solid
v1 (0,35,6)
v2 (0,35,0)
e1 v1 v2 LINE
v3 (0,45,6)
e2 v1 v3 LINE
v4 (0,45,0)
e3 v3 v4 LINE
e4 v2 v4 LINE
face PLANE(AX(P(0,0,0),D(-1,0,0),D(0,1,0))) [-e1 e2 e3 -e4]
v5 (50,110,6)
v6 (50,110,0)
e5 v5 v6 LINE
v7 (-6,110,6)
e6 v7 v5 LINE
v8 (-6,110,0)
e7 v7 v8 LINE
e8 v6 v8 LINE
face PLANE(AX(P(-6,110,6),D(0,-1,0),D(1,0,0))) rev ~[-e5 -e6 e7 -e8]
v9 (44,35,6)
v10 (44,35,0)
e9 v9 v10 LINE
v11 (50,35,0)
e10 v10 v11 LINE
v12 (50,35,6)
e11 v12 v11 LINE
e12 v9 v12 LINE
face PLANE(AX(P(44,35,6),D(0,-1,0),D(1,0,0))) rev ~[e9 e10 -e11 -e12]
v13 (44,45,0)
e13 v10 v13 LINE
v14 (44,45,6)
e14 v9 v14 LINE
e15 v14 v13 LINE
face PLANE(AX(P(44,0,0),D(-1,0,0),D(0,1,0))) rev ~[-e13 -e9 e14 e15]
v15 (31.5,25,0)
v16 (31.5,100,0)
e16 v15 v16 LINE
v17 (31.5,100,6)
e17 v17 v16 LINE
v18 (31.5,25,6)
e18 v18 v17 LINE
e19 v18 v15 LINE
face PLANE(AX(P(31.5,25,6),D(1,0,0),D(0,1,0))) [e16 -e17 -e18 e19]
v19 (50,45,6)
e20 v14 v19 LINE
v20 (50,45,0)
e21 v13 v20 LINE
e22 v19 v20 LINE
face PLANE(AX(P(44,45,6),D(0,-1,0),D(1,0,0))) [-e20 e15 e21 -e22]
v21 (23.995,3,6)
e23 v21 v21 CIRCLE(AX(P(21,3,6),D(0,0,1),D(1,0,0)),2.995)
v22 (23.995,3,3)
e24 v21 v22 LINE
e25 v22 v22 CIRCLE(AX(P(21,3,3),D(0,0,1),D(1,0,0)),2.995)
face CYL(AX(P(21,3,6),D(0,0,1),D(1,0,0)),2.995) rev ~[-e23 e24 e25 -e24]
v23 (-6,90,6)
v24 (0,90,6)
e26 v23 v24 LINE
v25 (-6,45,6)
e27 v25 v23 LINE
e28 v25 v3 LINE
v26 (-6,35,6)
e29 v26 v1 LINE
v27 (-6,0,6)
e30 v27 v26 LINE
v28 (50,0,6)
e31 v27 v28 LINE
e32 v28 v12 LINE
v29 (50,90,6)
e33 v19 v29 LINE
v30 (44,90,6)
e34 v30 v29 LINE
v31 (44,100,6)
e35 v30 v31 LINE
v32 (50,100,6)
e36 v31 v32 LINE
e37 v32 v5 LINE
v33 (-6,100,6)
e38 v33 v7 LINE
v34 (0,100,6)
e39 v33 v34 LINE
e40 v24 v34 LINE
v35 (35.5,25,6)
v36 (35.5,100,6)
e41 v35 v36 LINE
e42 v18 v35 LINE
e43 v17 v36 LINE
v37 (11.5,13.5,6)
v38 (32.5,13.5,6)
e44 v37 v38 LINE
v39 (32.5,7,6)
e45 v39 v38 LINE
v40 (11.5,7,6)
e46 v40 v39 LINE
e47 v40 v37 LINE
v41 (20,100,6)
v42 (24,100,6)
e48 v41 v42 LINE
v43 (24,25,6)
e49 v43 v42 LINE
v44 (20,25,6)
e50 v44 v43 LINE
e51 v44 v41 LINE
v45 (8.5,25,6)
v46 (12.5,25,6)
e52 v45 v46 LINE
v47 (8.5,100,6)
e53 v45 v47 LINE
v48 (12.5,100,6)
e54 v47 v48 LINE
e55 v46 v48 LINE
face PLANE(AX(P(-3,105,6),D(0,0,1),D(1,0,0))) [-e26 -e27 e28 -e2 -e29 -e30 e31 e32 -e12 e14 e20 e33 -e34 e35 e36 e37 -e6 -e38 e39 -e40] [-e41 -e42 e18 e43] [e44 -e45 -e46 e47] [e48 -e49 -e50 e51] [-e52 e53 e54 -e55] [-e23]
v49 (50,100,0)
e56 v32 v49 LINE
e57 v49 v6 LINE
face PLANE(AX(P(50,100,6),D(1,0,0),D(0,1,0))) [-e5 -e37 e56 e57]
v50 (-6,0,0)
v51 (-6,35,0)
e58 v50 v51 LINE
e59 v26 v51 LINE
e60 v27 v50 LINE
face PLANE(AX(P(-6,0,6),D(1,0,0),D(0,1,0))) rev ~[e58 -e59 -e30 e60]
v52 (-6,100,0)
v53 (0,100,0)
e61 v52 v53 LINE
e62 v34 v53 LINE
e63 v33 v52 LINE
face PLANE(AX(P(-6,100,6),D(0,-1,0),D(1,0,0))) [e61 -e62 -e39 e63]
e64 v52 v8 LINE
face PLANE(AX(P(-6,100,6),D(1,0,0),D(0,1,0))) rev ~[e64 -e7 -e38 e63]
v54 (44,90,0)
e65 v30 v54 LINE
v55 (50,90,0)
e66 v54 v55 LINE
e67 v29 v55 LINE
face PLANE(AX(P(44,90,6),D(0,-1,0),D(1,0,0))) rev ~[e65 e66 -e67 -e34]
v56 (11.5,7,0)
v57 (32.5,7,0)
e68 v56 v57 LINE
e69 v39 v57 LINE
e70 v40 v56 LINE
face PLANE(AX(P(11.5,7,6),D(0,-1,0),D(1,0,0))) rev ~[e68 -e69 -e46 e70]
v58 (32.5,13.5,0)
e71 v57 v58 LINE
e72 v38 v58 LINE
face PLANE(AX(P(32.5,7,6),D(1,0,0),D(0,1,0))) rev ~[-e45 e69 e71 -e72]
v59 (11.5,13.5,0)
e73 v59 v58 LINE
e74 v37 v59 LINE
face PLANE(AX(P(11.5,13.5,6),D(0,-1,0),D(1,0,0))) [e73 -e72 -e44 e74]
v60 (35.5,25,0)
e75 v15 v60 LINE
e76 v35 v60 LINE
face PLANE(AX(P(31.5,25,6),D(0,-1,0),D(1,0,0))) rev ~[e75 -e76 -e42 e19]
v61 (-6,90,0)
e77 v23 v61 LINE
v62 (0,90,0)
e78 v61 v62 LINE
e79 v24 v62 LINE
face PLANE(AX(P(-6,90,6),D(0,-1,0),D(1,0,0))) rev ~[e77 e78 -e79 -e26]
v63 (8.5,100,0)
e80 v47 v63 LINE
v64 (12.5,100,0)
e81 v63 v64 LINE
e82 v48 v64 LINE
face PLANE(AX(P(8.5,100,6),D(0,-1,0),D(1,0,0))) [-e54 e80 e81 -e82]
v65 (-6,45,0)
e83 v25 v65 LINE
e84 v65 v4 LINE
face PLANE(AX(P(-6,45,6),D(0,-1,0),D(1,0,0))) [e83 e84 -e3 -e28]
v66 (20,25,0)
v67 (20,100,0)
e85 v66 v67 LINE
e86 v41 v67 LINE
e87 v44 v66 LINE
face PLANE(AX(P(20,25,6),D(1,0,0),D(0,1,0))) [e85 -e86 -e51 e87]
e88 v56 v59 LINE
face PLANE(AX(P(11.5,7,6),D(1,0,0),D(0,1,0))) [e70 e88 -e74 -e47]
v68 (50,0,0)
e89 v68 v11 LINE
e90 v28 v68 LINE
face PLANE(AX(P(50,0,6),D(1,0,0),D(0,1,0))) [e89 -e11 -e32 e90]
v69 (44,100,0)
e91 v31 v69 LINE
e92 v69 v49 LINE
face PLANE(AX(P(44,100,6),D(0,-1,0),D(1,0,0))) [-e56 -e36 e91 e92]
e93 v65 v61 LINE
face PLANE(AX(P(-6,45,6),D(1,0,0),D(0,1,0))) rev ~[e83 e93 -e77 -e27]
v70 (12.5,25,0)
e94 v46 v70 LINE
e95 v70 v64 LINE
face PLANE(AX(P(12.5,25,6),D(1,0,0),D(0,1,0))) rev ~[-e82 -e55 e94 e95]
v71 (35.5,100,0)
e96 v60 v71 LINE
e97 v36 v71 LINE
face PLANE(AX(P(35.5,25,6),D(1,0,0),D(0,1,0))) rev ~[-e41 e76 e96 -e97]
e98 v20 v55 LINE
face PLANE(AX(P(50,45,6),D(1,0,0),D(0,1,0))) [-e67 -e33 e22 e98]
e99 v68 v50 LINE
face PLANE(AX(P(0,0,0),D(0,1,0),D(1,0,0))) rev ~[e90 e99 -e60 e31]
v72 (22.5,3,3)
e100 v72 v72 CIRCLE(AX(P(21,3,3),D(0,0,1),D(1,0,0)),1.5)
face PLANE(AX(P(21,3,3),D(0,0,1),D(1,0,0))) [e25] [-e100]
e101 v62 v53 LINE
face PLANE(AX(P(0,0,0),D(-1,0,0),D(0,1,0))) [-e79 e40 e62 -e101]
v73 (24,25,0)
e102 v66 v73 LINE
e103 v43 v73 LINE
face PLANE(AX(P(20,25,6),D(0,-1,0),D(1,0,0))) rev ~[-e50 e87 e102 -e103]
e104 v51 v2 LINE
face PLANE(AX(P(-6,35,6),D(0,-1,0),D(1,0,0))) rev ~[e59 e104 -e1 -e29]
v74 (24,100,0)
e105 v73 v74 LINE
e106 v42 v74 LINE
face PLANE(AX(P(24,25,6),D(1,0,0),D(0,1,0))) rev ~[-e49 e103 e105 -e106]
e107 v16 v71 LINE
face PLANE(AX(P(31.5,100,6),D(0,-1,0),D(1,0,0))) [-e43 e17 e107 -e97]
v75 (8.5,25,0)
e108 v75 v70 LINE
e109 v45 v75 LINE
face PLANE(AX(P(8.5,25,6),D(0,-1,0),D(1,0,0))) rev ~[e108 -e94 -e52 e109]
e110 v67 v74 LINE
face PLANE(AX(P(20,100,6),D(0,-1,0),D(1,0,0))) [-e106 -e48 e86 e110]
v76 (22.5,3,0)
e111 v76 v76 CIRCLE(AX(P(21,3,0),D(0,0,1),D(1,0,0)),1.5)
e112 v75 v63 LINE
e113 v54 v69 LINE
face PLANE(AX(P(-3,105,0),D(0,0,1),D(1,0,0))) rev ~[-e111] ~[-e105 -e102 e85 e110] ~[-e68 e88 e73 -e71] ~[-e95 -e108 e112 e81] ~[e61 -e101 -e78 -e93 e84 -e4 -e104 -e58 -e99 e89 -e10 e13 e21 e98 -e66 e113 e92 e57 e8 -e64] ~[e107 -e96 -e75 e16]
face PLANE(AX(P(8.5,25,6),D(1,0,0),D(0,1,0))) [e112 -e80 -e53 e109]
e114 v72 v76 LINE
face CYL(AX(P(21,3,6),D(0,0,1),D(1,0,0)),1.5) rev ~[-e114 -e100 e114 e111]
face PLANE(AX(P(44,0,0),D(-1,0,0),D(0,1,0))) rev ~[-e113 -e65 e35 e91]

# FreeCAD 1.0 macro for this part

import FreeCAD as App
import Part
import Sketcher

V = App.Vector
Q = App.Units.Quantity

doc = App.newDocument("Part")
body = doc.addObject("PartDesign::Body", "Body")

sketch1 = body.newObject("Sketcher::SketchObject", "Sketch")
sketch1.AttachmentSupport = (doc.getObject("XY_Plane"), [""])
sketch1.MapMode = "FlatFace"
sketch1.addGeometry(Part.LineSegment(V(0, 110, 0), V(0, 0, 0)), False)
sketch1.addGeometry(Part.LineSegment(V(0, 0, 0), V(44, 0, 0)), False)
sketch1.addGeometry(Part.LineSegment(V(44, 0, 0), V(44, 110, 0)), False)
sketch1.addGeometry(Part.LineSegment(V(44, 110, 0), V(0, 110, 0)), False)
sketch1.addConstraint(Sketcher.Constraint("Coincident", 0, 2, 1, 1))
sketch1.addConstraint(Sketcher.Constraint("Coincident", 1, 2, 2, 1))
sketch1.addConstraint(Sketcher.Constraint("Coincident", 2, 2, 3, 1))
sketch1.addConstraint(Sketcher.Constraint("Coincident", 3, 2, 0, 1))
sketch1.addConstraint(Sketcher.Constraint("Vertical", 0))
sketch1.addConstraint(Sketcher.Constraint("Horizontal", 1))
sketch1.addConstraint(Sketcher.Constraint("Vertical", 2))
sketch1.addConstraint(Sketcher.Constraint("Horizontal", 3))
sketch1.addConstraint(Sketcher.Constraint("Coincident", 0, 2, -1, 1))
sketch1.addConstraint(Sketcher.Constraint("DistanceX", 1, 1, 1, 2, Q("44 mm")))
sketch1.addConstraint(Sketcher.Constraint("DistanceY", 0, 2, 0, 1, Q("110 mm")))
pad1 = body.newObject("PartDesign::Pad", "Pad")
pad1.Profile = sketch1
pad1.Length = 6

sketch2 = body.newObject("Sketcher::SketchObject", "Sketch001")
sketch2.AttachmentSupport = (doc.getObject("XY_Plane"), [""])
sketch2.MapMode = "FlatFace"
sketch2.AttachmentOffset = App.Placement(V(0, 0, 6), App.Rotation())
sketch2.addGeometry(Part.LineSegment(V(11.5, 13.5, 0), V(11.5, 7, 0)), False)
sketch2.addGeometry(Part.LineSegment(V(11.5, 7, 0), V(32.5, 7, 0)), False)
sketch2.addGeometry(Part.LineSegment(V(32.5, 7, 0), V(32.5, 13.5, 0)), False)
sketch2.addGeometry(Part.LineSegment(V(32.5, 13.5, 0), V(11.5, 13.5, 0)), False)
sketch2.addGeometry(Part.LineSegment(V(20, 100, 0), V(20, 25, 0)), False)
sketch2.addGeometry(Part.LineSegment(V(20, 25, 0), V(24, 25, 0)), False)
sketch2.addGeometry(Part.LineSegment(V(24, 25, 0), V(24, 100, 0)), False)
sketch2.addGeometry(Part.LineSegment(V(24, 100, 0), V(20, 100, 0)), False)
sketch2.addGeometry(Part.LineSegment(V(31.5, 100, 0), V(31.5, 25, 0)), False)
sketch2.addGeometry(Part.LineSegment(V(31.5, 25, 0), V(35.5, 25, 0)), False)
sketch2.addGeometry(Part.LineSegment(V(35.5, 25, 0), V(35.5, 100, 0)), False)
sketch2.addGeometry(Part.LineSegment(V(35.5, 100, 0), V(31.5, 100, 0)), False)
sketch2.addGeometry(Part.LineSegment(V(8.5, 100, 0), V(8.5, 25, 0)), False)
sketch2.addGeometry(Part.LineSegment(V(8.5, 25, 0), V(12.5, 25, 0)), False)
sketch2.addGeometry(Part.LineSegment(V(12.5, 25, 0), V(12.5, 100, 0)), False)
sketch2.addGeometry(Part.LineSegment(V(12.5, 100, 0), V(8.5, 100, 0)), False)
sketch2.addConstraint(Sketcher.Constraint("Coincident", 0, 2, 1, 1))
sketch2.addConstraint(Sketcher.Constraint("Coincident", 1, 2, 2, 1))
sketch2.addConstraint(Sketcher.Constraint("Coincident", 2, 2, 3, 1))
sketch2.addConstraint(Sketcher.Constraint("Coincident", 3, 2, 0, 1))
sketch2.addConstraint(Sketcher.Constraint("Coincident", 4, 2, 5, 1))
sketch2.addConstraint(Sketcher.Constraint("Coincident", 5, 2, 6, 1))
sketch2.addConstraint(Sketcher.Constraint("Coincident", 6, 2, 7, 1))
sketch2.addConstraint(Sketcher.Constraint("Coincident", 7, 2, 4, 1))
sketch2.addConstraint(Sketcher.Constraint("Coincident", 8, 2, 9, 1))
sketch2.addConstraint(Sketcher.Constraint("Coincident", 9, 2, 10, 1))
sketch2.addConstraint(Sketcher.Constraint("Coincident", 10, 2, 11, 1))
sketch2.addConstraint(Sketcher.Constraint("Coincident", 11, 2, 8, 1))
sketch2.addConstraint(Sketcher.Constraint("Coincident", 12, 2, 13, 1))
sketch2.addConstraint(Sketcher.Constraint("Coincident", 13, 2, 14, 1))
sketch2.addConstraint(Sketcher.Constraint("Coincident", 14, 2, 15, 1))
sketch2.addConstraint(Sketcher.Constraint("Coincident", 15, 2, 12, 1))
sketch2.addConstraint(Sketcher.Constraint("Vertical", 0))
sketch2.addConstraint(Sketcher.Constraint("Horizontal", 1))
sketch2.addConstraint(Sketcher.Constraint("Vertical", 2))
sketch2.addConstraint(Sketcher.Constraint("Horizontal", 3))
sketch2.addConstraint(Sketcher.Constraint("Vertical", 4))
sketch2.addConstraint(Sketcher.Constraint("Horizontal", 5))
sketch2.addConstraint(Sketcher.Constraint("Vertical", 6))
sketch2.addConstraint(Sketcher.Constraint("Horizontal", 7))
sketch2.addConstraint(Sketcher.Constraint("Vertical", 8))
sketch2.addConstraint(Sketcher.Constraint("Horizontal", 9))
sketch2.addConstraint(Sketcher.Constraint("Vertical", 10))
sketch2.addConstraint(Sketcher.Constraint("Horizontal", 11))
sketch2.addConstraint(Sketcher.Constraint("Vertical", 12))
sketch2.addConstraint(Sketcher.Constraint("Horizontal", 13))
sketch2.addConstraint(Sketcher.Constraint("Vertical", 14))
sketch2.addConstraint(Sketcher.Constraint("Horizontal", 15))
sketch2.addConstraint(Sketcher.Constraint("Horizontal", 5, 2, 8, 2))
sketch2.addConstraint(Sketcher.Constraint("Horizontal", 7, 2, 10, 2))
sketch2.addConstraint(Sketcher.Constraint("Horizontal", 9, 2, 12, 2))
sketch2.addConstraint(Sketcher.Constraint("Horizontal", 11, 2, 14, 2))
sketch2.addConstraint(Sketcher.Constraint("Equal", 7, 9))
sketch2.addConstraint(Sketcher.Constraint("Equal", 11, 13))
sketch2.addConstraint(Sketcher.Constraint("DistanceX", 1, 1, 1, 2, Q("21 mm")))
sketch2.addConstraint(Sketcher.Constraint("DistanceX", 5, 1, 5, 2, Q("4 mm")))
sketch2.addConstraint(Sketcher.Constraint("DistanceY", 4, 2, 4, 1, Q("75 mm")))
sketch2.addConstraint(Sketcher.Constraint("DistanceY", 0, 2, 0, 1, Q("6.5 mm")))
sketch2.addConstraint(Sketcher.Constraint("DistanceY", -1, 1, 0, 2, Q("7 mm")))
sketch2.addConstraint(Sketcher.Constraint("DistanceX", -1, 1, 4, 2, Q("20 mm")))
sketch2.addConstraint(Sketcher.Constraint("DistanceY", -1, 1, 4, 2, Q("25 mm")))
sketch2.addConstraint(Sketcher.Constraint("DistanceX", 8, 2, 2, 2, Q("1 mm")))
sketch2.addConstraint(Sketcher.Constraint("DistanceX", 12, 2, 3, 2, Q("3 mm")))
sketch2.addConstraint(Sketcher.Constraint("DistanceX", -1, 1, 0, 2, Q("11.5 mm")))
pocket1 = body.newObject("PartDesign::Pocket", "Pocket")
pocket1.Profile = sketch2
pocket1.Length = 6

sketch3 = body.newObject("Sketcher::SketchObject", "Sketch002")
sketch3.AttachmentSupport = (doc.getObject("XY_Plane"), [""])
sketch3.MapMode = "FlatFace"
sketch3.AttachmentOffset = App.Placement(V(0, 0, 6), App.Rotation())
sketch3.addGeometry(Part.LineSegment(V(-6, 110, 0), V(-6, 100, 0)), False)
sketch3.addGeometry(Part.LineSegment(V(-6, 100, 0), V(0, 100, 0)), False)
sketch3.addGeometry(Part.LineSegment(V(0, 100, 0), V(0, 110, 0)), False)
sketch3.addGeometry(Part.LineSegment(V(0, 110, 0), V(-6, 110, 0)), False)
sketch3.addGeometry(Part.LineSegment(V(-6, 90, 0), V(-6, 45, 0)), False)
sketch3.addGeometry(Part.LineSegment(V(-6, 45, 0), V(0, 45, 0)), False)
sketch3.addGeometry(Part.LineSegment(V(0, 45, 0), V(0, 90, 0)), False)
sketch3.addGeometry(Part.LineSegment(V(0, 90, 0), V(-6, 90, 0)), False)
sketch3.addGeometry(Part.LineSegment(V(-6, 35, 0), V(-6, 0, 0)), False)
sketch3.addGeometry(Part.LineSegment(V(-6, 0, 0), V(0, 0, 0)), False)
sketch3.addGeometry(Part.LineSegment(V(0, 0, 0), V(0, 35, 0)), False)
sketch3.addGeometry(Part.LineSegment(V(0, 35, 0), V(-6, 35, 0)), False)
sketch3.addGeometry(Part.LineSegment(V(44, 35, 0), V(44, 0, 0)), False)
sketch3.addGeometry(Part.LineSegment(V(44, 0, 0), V(50, 0, 0)), False)
sketch3.addGeometry(Part.LineSegment(V(50, 0, 0), V(50, 35, 0)), False)
sketch3.addGeometry(Part.LineSegment(V(50, 35, 0), V(44, 35, 0)), False)
sketch3.addGeometry(Part.LineSegment(V(44, 90, 0), V(44, 45, 0)), False)
sketch3.addGeometry(Part.LineSegment(V(44, 45, 0), V(50, 45, 0)), False)
sketch3.addGeometry(Part.LineSegment(V(50, 45, 0), V(50, 90, 0)), False)
sketch3.addGeometry(Part.LineSegment(V(50, 90, 0), V(44, 90, 0)), False)
sketch3.addGeometry(Part.LineSegment(V(44, 110, 0), V(44, 100, 0)), False)
sketch3.addGeometry(Part.LineSegment(V(44, 100, 0), V(50, 100, 0)), False)
sketch3.addGeometry(Part.LineSegment(V(50, 100, 0), V(50, 110, 0)), False)
sketch3.addGeometry(Part.LineSegment(V(50, 110, 0), V(44, 110, 0)), False)
sketch3.addConstraint(Sketcher.Constraint("Coincident", 0, 2, 1, 1))
sketch3.addConstraint(Sketcher.Constraint("Coincident", 1, 2, 2, 1))
sketch3.addConstraint(Sketcher.Constraint("Coincident", 2, 2, 3, 1))
sketch3.addConstraint(Sketcher.Constraint("Coincident", 3, 2, 0, 1))
sketch3.addConstraint(Sketcher.Constraint("Coincident", 4, 2, 5, 1))
sketch3.addConstraint(Sketcher.Constraint("Coincident", 5, 2, 6, 1))
sketch3.addConstraint(Sketcher.Constraint("Coincident", 6, 2, 7, 1))
sketch3.addConstraint(Sketcher.Constraint("Coincident", 7, 2, 4, 1))
sketch3.addConstraint(Sketcher.Constraint("Coincident", 8, 2, 9, 1))
sketch3.addConstraint(Sketcher.Constraint("Coincident", 9, 2, 10, 1))
sketch3.addConstraint(Sketcher.Constraint("Coincident", 10, 2, 11, 1))
sketch3.addConstraint(Sketcher.Constraint("Coincident", 11, 2, 8, 1))
sketch3.addConstraint(Sketcher.Constraint("Coincident", 12, 2, 13, 1))
sketch3.addConstraint(Sketcher.Constraint("Coincident", 13, 2, 14, 1))
sketch3.addConstraint(Sketcher.Constraint("Coincident", 14, 2, 15, 1))
sketch3.addConstraint(Sketcher.Constraint("Coincident", 15, 2, 12, 1))
sketch3.addConstraint(Sketcher.Constraint("Coincident", 16, 2, 17, 1))
sketch3.addConstraint(Sketcher.Constraint("Coincident", 17, 2, 18, 1))
sketch3.addConstraint(Sketcher.Constraint("Coincident", 18, 2, 19, 1))
sketch3.addConstraint(Sketcher.Constraint("Coincident", 19, 2, 16, 1))
sketch3.addConstraint(Sketcher.Constraint("Coincident", 20, 2, 21, 1))
sketch3.addConstraint(Sketcher.Constraint("Coincident", 21, 2, 22, 1))
sketch3.addConstraint(Sketcher.Constraint("Coincident", 22, 2, 23, 1))
sketch3.addConstraint(Sketcher.Constraint("Coincident", 23, 2, 20, 1))
sketch3.addConstraint(Sketcher.Constraint("Vertical", 0))
sketch3.addConstraint(Sketcher.Constraint("Horizontal", 1))
sketch3.addConstraint(Sketcher.Constraint("Vertical", 2))
sketch3.addConstraint(Sketcher.Constraint("Horizontal", 3))
sketch3.addConstraint(Sketcher.Constraint("Vertical", 4))
sketch3.addConstraint(Sketcher.Constraint("Horizontal", 5))
sketch3.addConstraint(Sketcher.Constraint("Vertical", 6))
sketch3.addConstraint(Sketcher.Constraint("Horizontal", 7))
sketch3.addConstraint(Sketcher.Constraint("Vertical", 8))
sketch3.addConstraint(Sketcher.Constraint("Horizontal", 9))
sketch3.addConstraint(Sketcher.Constraint("Vertical", 10))
sketch3.addConstraint(Sketcher.Constraint("Horizontal", 11))
sketch3.addConstraint(Sketcher.Constraint("Vertical", 12))
sketch3.addConstraint(Sketcher.Constraint("Horizontal", 13))
sketch3.addConstraint(Sketcher.Constraint("Vertical", 14))
sketch3.addConstraint(Sketcher.Constraint("Horizontal", 15))
sketch3.addConstraint(Sketcher.Constraint("Vertical", 16))
sketch3.addConstraint(Sketcher.Constraint("Horizontal", 17))
sketch3.addConstraint(Sketcher.Constraint("Vertical", 18))
sketch3.addConstraint(Sketcher.Constraint("Horizontal", 19))
sketch3.addConstraint(Sketcher.Constraint("Vertical", 20))
sketch3.addConstraint(Sketcher.Constraint("Horizontal", 21))
sketch3.addConstraint(Sketcher.Constraint("Vertical", 22))
sketch3.addConstraint(Sketcher.Constraint("Horizontal", 23))
sketch3.addConstraint(Sketcher.Constraint("Coincident", 9, 2, -1, 1))
sketch3.addConstraint(Sketcher.Constraint("PointOnObject", 1, 2, -2))
sketch3.addConstraint(Sketcher.Constraint("PointOnObject", 5, 2, -2))
sketch3.addConstraint(Sketcher.Constraint("PointOnObject", 12, 2, -1))
sketch3.addConstraint(Sketcher.Constraint("Horizontal", 11, 2, 14, 2))
sketch3.addConstraint(Sketcher.Constraint("Horizontal", 5, 2, 16, 2))
sketch3.addConstraint(Sketcher.Constraint("Horizontal", 7, 2, 18, 2))
sketch3.addConstraint(Sketcher.Constraint("Horizontal", 1, 2, 20, 2))
sketch3.addConstraint(Sketcher.Constraint("Horizontal", 3, 2, 22, 2))
sketch3.addConstraint(Sketcher.Constraint("Vertical", 3, 2, 4, 2))
sketch3.addConstraint(Sketcher.Constraint("Vertical", 7, 2, 8, 2))
sketch3.addConstraint(Sketcher.Constraint("Vertical", 15, 2, 16, 2))
sketch3.addConstraint(Sketcher.Constraint("Vertical", 14, 2, 17, 2))
sketch3.addConstraint(Sketcher.Constraint("Vertical", 19, 2, 20, 2))
sketch3.addConstraint(Sketcher.Constraint("Vertical", 18, 2, 21, 2))
sketch3.addConstraint(Sketcher.Constraint("Equal", 11, 13))
sketch3.addConstraint(Sketcher.Constraint("DistanceX", 1, 1, 1, 2, Q("6 mm")))
sketch3.addConstraint(Sketcher.Constraint("DistanceY", 0, 2, 0, 1, Q("10 mm")))
sketch3.addConstraint(Sketcher.Constraint("DistanceY", 4, 2, 4, 1, Q("45 mm")))
sketch3.addConstraint(Sketcher.Constraint("DistanceY", 8, 2, 8, 1, Q("35 mm")))
sketch3.addConstraint(Sketcher.Constraint("DistanceY", -1, 1, 0, 2, Q("100 mm")))
sketch3.addConstraint(Sketcher.Constraint("DistanceY", -1, 1, 4, 2, Q("45 mm")))
sketch3.addConstraint(Sketcher.Constraint("DistanceX", -1, 1, 12, 2, Q("44 mm")))
pad2 = body.newObject("PartDesign::Pad", "Pad001")
pad2.Profile = sketch3
pad2.Length = 6
pad2.Reversed = True

sketch4 = body.newObject("Sketcher::SketchObject", "Sketch003")
sketch4.AttachmentSupport = (doc.getObject("XY_Plane"), [""])
sketch4.MapMode = "FlatFace"
sketch4.AttachmentOffset = App.Placement(V(0, 0, 6), App.Rotation())
sketch4.addGeometry(Part.Circle(V(21, 3, 0), V(0, 0, 1), 1.5), False)
sketch4.addConstraint(Sketcher.Constraint("Diameter", 0, Q("3 mm")))
sketch4.addConstraint(Sketcher.Constraint("DistanceX", -1, 1, 0, 3, Q("21 mm")))
sketch4.addConstraint(Sketcher.Constraint("DistanceY", -1, 1, 0, 3, Q("3 mm")))
pocket2 = body.newObject("PartDesign::Pocket", "Pocket001")
pocket2.Profile = sketch4
pocket2.Length = 6

sketch5 = body.newObject("Sketcher::SketchObject", "Sketch004")
sketch5.AttachmentSupport = (doc.getObject("XY_Plane"), [""])
sketch5.MapMode = "FlatFace"
sketch5.AttachmentOffset = App.Placement(V(0, 0, 6), App.Rotation())
sketch5.addGeometry(Part.Circle(V(21, 3, 0), V(0, 0, 1), 3), False)
sketch5.addConstraint(Sketcher.Constraint("Diameter", 0, Q("5.99 mm")))
sketch5.addConstraint(Sketcher.Constraint("DistanceX", -1, 1, 0, 3, Q("21 mm")))
sketch5.addConstraint(Sketcher.Constraint("DistanceY", -1, 1, 0, 3, Q("3 mm")))
pocket3 = body.newObject("PartDesign::Pocket", "Pocket002")
pocket3.Profile = sketch5
pocket3.Length = 3

doc.recompute()
